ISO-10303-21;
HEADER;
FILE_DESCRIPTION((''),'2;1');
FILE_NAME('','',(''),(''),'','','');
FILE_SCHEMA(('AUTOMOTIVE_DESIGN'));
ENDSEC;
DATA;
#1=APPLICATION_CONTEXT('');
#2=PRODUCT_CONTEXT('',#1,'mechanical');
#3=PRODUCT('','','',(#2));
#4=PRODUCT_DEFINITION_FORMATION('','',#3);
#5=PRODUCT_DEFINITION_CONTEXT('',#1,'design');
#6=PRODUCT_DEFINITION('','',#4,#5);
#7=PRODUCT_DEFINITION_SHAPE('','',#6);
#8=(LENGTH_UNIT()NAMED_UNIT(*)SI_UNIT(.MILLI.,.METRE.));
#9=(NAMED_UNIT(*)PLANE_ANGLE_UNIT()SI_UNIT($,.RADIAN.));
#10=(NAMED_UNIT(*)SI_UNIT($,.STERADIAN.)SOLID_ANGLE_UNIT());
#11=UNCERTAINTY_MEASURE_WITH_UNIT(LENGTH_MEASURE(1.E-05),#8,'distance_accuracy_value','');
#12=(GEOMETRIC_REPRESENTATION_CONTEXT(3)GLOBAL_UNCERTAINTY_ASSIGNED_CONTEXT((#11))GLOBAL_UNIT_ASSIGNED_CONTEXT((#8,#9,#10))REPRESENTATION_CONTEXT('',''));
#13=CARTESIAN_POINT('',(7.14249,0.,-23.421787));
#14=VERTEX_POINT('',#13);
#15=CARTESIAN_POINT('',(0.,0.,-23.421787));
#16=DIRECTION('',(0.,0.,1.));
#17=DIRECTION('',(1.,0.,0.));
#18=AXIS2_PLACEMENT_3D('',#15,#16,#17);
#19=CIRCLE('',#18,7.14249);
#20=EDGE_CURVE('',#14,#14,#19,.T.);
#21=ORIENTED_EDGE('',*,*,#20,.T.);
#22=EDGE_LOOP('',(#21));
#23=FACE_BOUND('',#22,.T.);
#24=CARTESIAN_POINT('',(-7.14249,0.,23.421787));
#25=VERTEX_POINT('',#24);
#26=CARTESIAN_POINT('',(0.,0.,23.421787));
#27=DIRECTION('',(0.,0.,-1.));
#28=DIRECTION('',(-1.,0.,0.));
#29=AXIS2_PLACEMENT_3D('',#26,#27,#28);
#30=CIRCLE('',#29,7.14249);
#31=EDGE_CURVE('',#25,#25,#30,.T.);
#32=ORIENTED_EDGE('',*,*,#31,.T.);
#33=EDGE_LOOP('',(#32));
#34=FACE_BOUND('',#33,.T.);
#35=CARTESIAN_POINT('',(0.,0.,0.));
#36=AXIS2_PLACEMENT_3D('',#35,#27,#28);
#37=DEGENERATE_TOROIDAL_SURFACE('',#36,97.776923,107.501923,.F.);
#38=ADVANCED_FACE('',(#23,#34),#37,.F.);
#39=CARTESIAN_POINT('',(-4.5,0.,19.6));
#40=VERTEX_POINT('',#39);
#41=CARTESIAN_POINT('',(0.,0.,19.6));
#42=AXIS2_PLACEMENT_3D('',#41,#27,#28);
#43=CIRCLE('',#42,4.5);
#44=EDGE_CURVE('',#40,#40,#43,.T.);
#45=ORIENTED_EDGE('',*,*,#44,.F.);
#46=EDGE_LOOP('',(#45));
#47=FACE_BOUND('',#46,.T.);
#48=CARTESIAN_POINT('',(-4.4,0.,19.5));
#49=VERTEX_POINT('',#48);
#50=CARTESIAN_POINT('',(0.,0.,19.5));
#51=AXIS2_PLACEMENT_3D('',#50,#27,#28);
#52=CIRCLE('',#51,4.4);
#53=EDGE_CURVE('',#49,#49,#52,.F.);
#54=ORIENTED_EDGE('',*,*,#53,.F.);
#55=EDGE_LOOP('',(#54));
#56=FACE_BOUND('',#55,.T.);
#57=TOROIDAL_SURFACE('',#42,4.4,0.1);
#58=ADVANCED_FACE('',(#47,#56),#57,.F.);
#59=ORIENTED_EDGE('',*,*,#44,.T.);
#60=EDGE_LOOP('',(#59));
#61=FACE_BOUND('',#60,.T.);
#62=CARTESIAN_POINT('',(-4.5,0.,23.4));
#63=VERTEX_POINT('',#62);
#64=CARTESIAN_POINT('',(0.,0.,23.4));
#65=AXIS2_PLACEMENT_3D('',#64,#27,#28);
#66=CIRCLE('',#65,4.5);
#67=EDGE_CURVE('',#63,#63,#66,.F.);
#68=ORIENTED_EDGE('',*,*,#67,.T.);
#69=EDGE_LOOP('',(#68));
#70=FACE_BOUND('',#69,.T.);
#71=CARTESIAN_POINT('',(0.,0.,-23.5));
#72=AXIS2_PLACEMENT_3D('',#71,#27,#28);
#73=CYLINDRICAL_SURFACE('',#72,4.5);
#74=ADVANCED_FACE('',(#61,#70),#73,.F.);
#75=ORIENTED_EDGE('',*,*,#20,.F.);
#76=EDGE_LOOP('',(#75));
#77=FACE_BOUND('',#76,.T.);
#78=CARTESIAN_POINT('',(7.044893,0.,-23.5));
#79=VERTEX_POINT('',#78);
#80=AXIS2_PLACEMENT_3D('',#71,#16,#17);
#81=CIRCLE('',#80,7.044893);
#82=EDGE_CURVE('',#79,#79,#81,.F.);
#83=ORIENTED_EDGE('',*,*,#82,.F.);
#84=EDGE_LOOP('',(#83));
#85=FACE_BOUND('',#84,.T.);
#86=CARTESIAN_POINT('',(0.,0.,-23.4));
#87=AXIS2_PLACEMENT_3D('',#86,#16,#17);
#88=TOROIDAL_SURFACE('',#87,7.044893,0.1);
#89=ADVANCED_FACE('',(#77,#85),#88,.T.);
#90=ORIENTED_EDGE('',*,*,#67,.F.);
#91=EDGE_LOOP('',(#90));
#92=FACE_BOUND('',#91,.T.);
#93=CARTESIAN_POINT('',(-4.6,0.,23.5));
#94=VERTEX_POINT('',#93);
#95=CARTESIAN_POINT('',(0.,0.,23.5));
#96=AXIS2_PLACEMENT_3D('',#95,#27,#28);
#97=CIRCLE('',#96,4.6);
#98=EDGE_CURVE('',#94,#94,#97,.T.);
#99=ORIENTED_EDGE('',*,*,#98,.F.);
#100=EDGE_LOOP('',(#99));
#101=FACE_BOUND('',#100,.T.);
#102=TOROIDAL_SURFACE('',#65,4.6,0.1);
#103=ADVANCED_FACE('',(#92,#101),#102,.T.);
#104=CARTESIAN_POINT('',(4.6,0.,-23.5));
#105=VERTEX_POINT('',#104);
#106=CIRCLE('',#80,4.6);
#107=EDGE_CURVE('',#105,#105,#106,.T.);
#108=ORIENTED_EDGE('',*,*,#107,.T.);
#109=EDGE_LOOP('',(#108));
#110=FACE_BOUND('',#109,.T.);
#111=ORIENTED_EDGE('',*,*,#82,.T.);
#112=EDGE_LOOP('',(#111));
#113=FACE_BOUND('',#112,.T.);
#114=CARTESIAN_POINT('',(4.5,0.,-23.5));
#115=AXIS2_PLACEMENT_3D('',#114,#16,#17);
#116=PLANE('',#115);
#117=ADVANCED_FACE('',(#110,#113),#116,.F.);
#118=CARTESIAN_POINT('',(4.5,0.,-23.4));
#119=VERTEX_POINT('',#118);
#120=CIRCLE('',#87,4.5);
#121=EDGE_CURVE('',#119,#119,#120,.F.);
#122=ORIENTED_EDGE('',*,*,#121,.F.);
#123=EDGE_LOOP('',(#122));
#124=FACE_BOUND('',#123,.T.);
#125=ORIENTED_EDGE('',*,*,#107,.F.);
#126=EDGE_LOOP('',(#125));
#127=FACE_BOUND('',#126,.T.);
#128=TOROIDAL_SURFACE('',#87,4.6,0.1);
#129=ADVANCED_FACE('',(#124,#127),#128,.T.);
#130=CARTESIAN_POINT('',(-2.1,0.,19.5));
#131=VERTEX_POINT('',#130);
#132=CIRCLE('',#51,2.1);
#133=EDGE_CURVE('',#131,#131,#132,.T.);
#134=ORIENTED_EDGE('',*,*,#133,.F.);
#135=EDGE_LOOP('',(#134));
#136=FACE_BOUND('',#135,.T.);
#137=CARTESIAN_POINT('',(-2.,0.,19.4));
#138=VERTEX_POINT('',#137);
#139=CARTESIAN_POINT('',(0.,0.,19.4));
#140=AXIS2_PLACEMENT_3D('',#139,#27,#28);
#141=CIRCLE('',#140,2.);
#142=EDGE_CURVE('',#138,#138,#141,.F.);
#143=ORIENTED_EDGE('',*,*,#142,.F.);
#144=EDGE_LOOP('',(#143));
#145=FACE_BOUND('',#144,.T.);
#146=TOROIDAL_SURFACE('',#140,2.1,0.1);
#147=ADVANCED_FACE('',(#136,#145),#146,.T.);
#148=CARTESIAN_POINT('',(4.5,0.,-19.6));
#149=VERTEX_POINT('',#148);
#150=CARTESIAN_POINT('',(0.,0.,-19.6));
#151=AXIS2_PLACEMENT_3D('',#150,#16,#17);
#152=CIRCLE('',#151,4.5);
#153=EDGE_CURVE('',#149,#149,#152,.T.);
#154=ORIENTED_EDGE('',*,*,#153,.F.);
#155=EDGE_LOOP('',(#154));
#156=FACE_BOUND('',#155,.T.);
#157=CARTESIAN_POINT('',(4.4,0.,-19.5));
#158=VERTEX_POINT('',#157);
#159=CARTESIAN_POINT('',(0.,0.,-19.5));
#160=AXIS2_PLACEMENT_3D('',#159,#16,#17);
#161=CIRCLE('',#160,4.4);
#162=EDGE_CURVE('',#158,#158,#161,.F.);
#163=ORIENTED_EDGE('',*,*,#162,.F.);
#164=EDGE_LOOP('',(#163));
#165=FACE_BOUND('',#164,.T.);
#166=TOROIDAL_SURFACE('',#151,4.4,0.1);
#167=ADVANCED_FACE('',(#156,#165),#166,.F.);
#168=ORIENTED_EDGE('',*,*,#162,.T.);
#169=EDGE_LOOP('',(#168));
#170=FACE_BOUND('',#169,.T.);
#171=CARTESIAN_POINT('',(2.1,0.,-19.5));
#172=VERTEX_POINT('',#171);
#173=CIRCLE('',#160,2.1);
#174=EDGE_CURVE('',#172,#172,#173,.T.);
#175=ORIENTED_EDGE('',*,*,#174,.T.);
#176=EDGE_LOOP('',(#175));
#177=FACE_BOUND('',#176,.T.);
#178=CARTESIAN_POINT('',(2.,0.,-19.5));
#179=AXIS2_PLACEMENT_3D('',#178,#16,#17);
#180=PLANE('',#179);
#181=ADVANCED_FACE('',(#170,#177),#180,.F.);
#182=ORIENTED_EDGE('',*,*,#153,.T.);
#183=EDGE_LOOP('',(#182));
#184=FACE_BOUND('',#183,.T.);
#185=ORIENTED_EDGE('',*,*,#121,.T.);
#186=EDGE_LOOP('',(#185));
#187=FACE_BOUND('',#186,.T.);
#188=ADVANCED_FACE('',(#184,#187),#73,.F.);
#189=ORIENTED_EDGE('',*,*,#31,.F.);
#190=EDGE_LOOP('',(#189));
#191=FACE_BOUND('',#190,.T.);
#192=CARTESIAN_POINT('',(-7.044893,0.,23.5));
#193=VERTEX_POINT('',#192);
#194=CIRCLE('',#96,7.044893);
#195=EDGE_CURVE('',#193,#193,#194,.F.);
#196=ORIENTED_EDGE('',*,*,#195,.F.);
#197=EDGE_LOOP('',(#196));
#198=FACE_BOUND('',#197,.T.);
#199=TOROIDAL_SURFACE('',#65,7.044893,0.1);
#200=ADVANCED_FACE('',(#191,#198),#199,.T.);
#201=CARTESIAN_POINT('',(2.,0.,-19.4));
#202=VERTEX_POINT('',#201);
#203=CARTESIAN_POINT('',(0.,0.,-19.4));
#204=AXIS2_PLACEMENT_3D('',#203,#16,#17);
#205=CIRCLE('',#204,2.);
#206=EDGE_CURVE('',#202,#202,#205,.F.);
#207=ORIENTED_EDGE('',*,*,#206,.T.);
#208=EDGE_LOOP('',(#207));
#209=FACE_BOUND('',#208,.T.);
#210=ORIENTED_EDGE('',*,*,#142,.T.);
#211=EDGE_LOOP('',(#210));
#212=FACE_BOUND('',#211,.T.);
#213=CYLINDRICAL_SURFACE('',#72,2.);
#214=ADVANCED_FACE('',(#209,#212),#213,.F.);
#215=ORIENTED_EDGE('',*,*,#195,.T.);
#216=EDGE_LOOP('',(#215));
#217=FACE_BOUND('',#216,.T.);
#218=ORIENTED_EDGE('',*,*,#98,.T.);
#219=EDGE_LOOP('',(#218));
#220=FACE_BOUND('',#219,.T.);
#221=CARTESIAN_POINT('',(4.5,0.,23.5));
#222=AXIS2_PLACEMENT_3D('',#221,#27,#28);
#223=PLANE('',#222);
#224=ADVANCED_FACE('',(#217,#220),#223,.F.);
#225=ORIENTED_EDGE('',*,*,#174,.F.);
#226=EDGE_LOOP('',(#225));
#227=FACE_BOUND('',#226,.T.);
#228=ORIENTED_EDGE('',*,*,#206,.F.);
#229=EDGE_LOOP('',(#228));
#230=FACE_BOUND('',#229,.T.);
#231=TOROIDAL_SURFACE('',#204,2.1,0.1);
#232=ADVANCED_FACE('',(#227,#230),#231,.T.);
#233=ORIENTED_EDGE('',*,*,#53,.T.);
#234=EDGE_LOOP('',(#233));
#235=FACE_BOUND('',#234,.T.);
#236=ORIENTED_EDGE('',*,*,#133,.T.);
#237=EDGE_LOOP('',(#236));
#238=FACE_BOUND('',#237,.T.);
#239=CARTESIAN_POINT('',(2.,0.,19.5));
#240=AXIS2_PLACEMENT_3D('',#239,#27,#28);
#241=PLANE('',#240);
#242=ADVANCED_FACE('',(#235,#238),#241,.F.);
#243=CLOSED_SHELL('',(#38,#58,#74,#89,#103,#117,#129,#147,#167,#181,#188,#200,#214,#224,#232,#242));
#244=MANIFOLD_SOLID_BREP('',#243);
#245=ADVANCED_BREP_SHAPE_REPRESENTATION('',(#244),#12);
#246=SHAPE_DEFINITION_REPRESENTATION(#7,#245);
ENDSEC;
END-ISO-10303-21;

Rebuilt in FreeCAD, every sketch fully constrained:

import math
import FreeCAD as App
import Part
import Sketcher

V = App.Vector
Q = App.Units.Quantity


def edges_at(feature, points):
    """Names of the edges that pass closest to the given points."""
    edges = feature.Shape.Edges
    near = lambda p: min(range(len(edges)), key=lambda i: edges[i].distToShape(Part.Vertex(*p))[0])
    return sorted({f"Edge{near(p) + 1}" for p in points})

doc = App.newDocument("Part")
params = doc.addObject("Spreadsheet::Sheet", "Params")
for row, (alias, value) in enumerate([
    ("sketch1_height", "39 mm"),
    ("sketch1_height2", "4 mm"),
    ("sketch1_width", "2.5 mm"),
    ("revolution_angle", "360 deg"),
    ("fillet_radius", "0.1 mm"),
], start=1):
    params.set(f"A{row}", alias)
    params.set(f"B{row}", "=" + value)
    params.setAlias(f"B{row}", alias)

body = doc.addObject("PartDesign::Body", "Body")

# Sketch on XZ plane
sketch1 = body.newObject("Sketcher::SketchObject", "Sketch")
sketch1.AttachmentSupport = (doc.getObject("XZ_Plane"), [""])
sketch1.MapMode = "FlatFace"
sketch1.addGeometry(Part.LineSegment(V(2, -19.5, 0), V(2, 19.5, 0)), False)
sketch1.addGeometry(Part.LineSegment(V(2, 19.5, 0), V(4.5, 19.5, 0)), False)
sketch1.addGeometry(Part.LineSegment(V(4.5, 19.5, 0), V(4.5, 23.5, 0)), False)
sketch1.addGeometry(Part.LineSegment(V(4.5, 23.5, 0), V(7.125, 23.5, 0)), False)
sketch1.addGeometry(Part.ArcOfCircle(Part.Circle(V(-97.776923, 0, 0), V(0, 0, 1), 107.501923), math.radians(-12.626861), math.radians(12.626861)), False)
sketch1.addGeometry(Part.LineSegment(V(7.125, -23.5, 0), V(4.5, -23.5, 0)), False)
sketch1.addGeometry(Part.LineSegment(V(4.5, -23.5, 0), V(4.5, -19.5, 0)), False)
sketch1.addGeometry(Part.LineSegment(V(4.5, -19.5, 0), V(2, -19.5, 0)), False)
sketch1.addConstraint(Sketcher.Constraint("Coincident", 0, 2, 1, 1))
sketch1.addConstraint(Sketcher.Constraint("Coincident", 1, 2, 2, 1))
sketch1.addConstraint(Sketcher.Constraint("Coincident", 2, 2, 3, 1))
sketch1.addConstraint(Sketcher.Constraint("Coincident", 3, 2, 4, 2))
sketch1.addConstraint(Sketcher.Constraint("Coincident", 4, 1, 5, 1))
sketch1.addConstraint(Sketcher.Constraint("Coincident", 5, 2, 6, 1))
sketch1.addConstraint(Sketcher.Constraint("Coincident", 6, 2, 7, 1))
sketch1.addConstraint(Sketcher.Constraint("Coincident", 7, 2, 0, 1))
sketch1.addConstraint(Sketcher.Constraint("Vertical", 0))
sketch1.addConstraint(Sketcher.Constraint("Horizontal", 1))
sketch1.addConstraint(Sketcher.Constraint("Vertical", 2))
sketch1.addConstraint(Sketcher.Constraint("Horizontal", 3))
sketch1.addConstraint(Sketcher.Constraint("Horizontal", 5))
sketch1.addConstraint(Sketcher.Constraint("Vertical", 6))
sketch1.addConstraint(Sketcher.Constraint("Horizontal", 7))
sketch1.addConstraint(Sketcher.Constraint("Symmetric", 3, 2, 4, 1, -1))
sketch1.addConstraint(Sketcher.Constraint("Symmetric", 1, 2, 6, 2, -1))
sketch1.addConstraint(Sketcher.Constraint("DistanceY", 0, 1, 0, 2, Q("39 mm")))
sketch1.addConstraint(Sketcher.Constraint("DistanceY", 2, 1, 2, 2, Q("4 mm")))
sketch1.addConstraint(Sketcher.Constraint("DistanceX", 1, 1, 1, 2, Q("2.5 mm")))
sketch1.addConstraint(Sketcher.Constraint("DistanceX", -1, 1, 0, 2, Q("2 mm")))
sketch1.addConstraint(Sketcher.Constraint("DistanceX", 3, 1, 3, 2, Q("2.625 mm")))
sketch1.addConstraint(Sketcher.Constraint("Radius", 4, Q("107.501923 mm")))
sketch1.setExpression("Constraints[17]", "Params.sketch1_height")
sketch1.setExpression("Constraints[18]", "Params.sketch1_height2")
sketch1.setExpression("Constraints[19]", "Params.sketch1_width")
revolution = body.newObject("PartDesign::Revolution", "Revolution")
revolution.Profile = sketch1
revolution.ReferenceAxis = (sketch1, ["V_Axis"])
revolution.setExpression("Angle", "Params.revolution_angle")
doc.recompute()

fillet = body.newObject("PartDesign::Fillet", "Fillet")
fillet.Base = (revolution, edges_at(revolution, [
    (4.5, 0, -19.5),
    (2, 0, -19.5),
    (2, 0, 19.5),
    (4.5, 0, 19.5),
    (4.5, 0, 23.5),
    (7.125, 0, 23.5),
    (7.125, 0, -23.5),
    (4.5, 0, -23.5),
]))
fillet.setExpression("Radius", "Params.fillet_radius")

doc.recompute()
